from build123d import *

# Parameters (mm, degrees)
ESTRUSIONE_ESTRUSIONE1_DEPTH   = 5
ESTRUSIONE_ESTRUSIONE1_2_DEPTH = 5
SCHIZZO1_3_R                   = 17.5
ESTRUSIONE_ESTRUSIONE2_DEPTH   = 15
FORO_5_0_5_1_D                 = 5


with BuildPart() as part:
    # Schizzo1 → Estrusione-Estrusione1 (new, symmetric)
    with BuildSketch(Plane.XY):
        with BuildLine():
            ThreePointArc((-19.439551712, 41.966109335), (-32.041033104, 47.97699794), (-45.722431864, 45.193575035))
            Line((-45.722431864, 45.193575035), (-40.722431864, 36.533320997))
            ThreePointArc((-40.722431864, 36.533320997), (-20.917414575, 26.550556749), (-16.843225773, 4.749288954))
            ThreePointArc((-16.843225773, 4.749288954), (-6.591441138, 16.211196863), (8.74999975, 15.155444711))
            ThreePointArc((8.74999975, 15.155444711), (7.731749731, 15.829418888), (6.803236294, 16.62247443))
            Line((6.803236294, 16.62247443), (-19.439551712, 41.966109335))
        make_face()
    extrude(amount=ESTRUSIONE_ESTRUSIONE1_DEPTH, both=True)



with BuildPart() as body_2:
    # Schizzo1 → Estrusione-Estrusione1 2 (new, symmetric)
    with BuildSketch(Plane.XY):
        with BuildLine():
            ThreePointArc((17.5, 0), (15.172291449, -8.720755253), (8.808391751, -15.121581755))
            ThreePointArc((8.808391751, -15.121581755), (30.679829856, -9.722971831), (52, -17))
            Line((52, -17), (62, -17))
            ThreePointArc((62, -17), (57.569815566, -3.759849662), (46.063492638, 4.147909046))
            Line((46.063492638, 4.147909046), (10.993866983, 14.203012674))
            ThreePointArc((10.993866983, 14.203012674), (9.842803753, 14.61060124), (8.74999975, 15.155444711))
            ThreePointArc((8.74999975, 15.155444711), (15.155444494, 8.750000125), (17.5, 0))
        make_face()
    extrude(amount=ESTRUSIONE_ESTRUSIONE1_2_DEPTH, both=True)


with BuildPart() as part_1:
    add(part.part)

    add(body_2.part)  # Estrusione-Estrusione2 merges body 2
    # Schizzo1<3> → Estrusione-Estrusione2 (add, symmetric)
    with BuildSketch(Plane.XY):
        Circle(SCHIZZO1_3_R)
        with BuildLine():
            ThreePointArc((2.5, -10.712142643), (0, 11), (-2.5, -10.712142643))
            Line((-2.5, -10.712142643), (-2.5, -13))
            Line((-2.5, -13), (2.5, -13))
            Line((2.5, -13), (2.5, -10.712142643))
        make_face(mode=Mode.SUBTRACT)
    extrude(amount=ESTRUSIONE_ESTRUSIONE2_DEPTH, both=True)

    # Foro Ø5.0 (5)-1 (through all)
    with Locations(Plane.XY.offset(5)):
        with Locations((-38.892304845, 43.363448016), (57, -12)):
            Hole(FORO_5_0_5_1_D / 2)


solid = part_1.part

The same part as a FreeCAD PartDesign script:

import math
import FreeCAD as App
import Part
import Sketcher

V = App.Vector
Q = App.Units.Quantity

doc = App.newDocument("Part")
params = doc.addObject("Spreadsheet::Sheet", "Params")
for row, (alias, value) in enumerate([
    ("sketch1_radius", "22 mm"),
    ("sketch1_radius2", "25 mm"),
    ("sketch1_radius3", "10 mm"),
    ("sketch1_radius4", "17.5 mm"),
    ("sketch1_length", "10 mm"),
    ("pad1_length", "10 mm"),
    ("sketch2_radius", "40 mm"),
    ("sketch2_radius2", "22 mm"),
    ("sketch2_radius3", "10 mm"),
    ("sketch2_radius4", "17.5 mm"),
    ("sketch2_width", "10 mm"),
    ("pad2_length", "10 mm"),
    ("sketch3_diameter", "35 mm"),
    ("sketch3_radius", "11 mm"),
    ("sketch3_width", "5 mm"),
    ("pad3_length", "30 mm"),
    ("sketch4_diameter", "5 mm"),
    ("hole_diameter", "5 mm"),
], start=1):
    params.set(f"A{row}", alias)
    params.set(f"B{row}", "=" + value)
    params.setAlias(f"B{row}", alias)

body = doc.addObject("PartDesign::Body", "Body")

# Sketch on XY plane
sketch1 = body.newObject("Sketcher::SketchObject", "Sketch")
sketch1.AttachmentSupport = (doc.getObject("XY_Plane"), [""])
sketch1.MapMode = "FlatFace"
sketch1.addGeometry([
    Part.ArcOfCircle(Part.Circle(V(-34.7, 26.1, 0), V(0, 0, 1), 22), math.radians(46), math.radians(120)),  # 0
    Part.LineSegment(V(-45.7, 45.2, 0), V(-40.7, 36.5, 0)),  # 1
    Part.ArcOfCircle(Part.Circle(V(-40.9, 11.5, 0), V(0, 0, 1), 25), math.radians(-16), math.radians(90)),  # 2
    Part.ArcOfCircle(Part.Circle(V(0, 0, 0), V(0, 0, 1), 17.5), math.radians(60), math.radians(164)),  # 3
    Part.ArcOfCircle(Part.Circle(V(13.7, 23.8, 0), V(0, 0, 1), 10), math.radians(-134), math.radians(-120)),  # 4
    Part.LineSegment(V(6.8, 16.6, 0), V(-19.4, 42, 0)),  # 5
], False)
sketch1.addConstraint([
    Sketcher.Constraint("Coincident", 0, 2, 1, 1),
    Sketcher.Constraint("Coincident", 1, 2, 2, 2),
    Sketcher.Constraint("Tangent", 2, 1, 3, 2),
    Sketcher.Constraint("Tangent", 3, 1, 4, 2),
    Sketcher.Constraint("Tangent", 4, 1, 5, 1),
    Sketcher.Constraint("Tangent", 5, 2, 0, 1),
    Sketcher.Constraint("Coincident", 3, 3, -1, 1),
    Sketcher.Constraint("Radius", 0, Q("22 mm")),
    Sketcher.Constraint("Radius", 2, Q("25 mm")),
    Sketcher.Constraint("Radius", 4, Q("10 mm")),
    Sketcher.Constraint("Radius", 3, Q("17.5 mm")),
    Sketcher.Constraint("Angle", 1, Q("-60 deg")),
    Sketcher.Constraint("Distance", 1, Q("10 mm")),
    Sketcher.Constraint("DistanceX", 0, 2, 0, 3, Q("11 mm")),
    Sketcher.Constraint("DistanceX", 3, 1, 4, 3, Q("5 mm")),
    Sketcher.Constraint("DistanceY", 2, 1, 2, 3, Q("6.784699 mm")),
    Sketcher.Constraint("Distance", 5, Q("36.48265 mm")),
])
sketch1.setExpression("Constraints[7]", "Params.sketch1_radius")
sketch1.setExpression("Constraints[8]", "Params.sketch1_radius2")
sketch1.setExpression("Constraints[9]", "Params.sketch1_radius3")
sketch1.setExpression("Constraints[10]", "Params.sketch1_radius4")
sketch1.setExpression("Constraints[12]", "Params.sketch1_length")
pad1 = body.newObject("PartDesign::Pad", "Pad")
pad1.Profile = sketch1
pad1.setExpression("Length", "Params.pad1_length")
pad1.Midplane = True
body2 = doc.addObject("PartDesign::Body", "Body001")

# Sketch on XY plane
sketch2 = body2.newObject("Sketcher::SketchObject", "Sketch001")
sketch2.AttachmentSupport = (doc.getObject("XY_Plane001"), [""])
sketch2.MapMode = "FlatFace"
sketch2.addGeometry([
    Part.ArcOfCircle(Part.Circle(V(0, 0, 0), V(0, 0, 1), 17.5), math.radians(-60), math.radians(0)),  # 0
    Part.ArcOfCircle(Part.Circle(V(28.9, -49.7, 0), V(0, 0, 1), 40), math.radians(55), math.radians(120)),  # 1
    Part.LineSegment(V(52, -17, 0), V(62, -17, 0)),  # 2
    Part.ArcOfCircle(Part.Circle(V(40, -17, 0), V(0, 0, 1), 22), math.radians(0), math.radians(74)),  # 3
    Part.LineSegment(V(46.1, 4.1, 0), V(11, 14.2, 0)),  # 4
    Part.ArcOfCircle(Part.Circle(V(13.8, 23.8, 0), V(0, 0, 1), 10), math.radians(-120), math.radians(-106)),  # 5
    Part.ArcOfCircle(Part.Circle(V(0, 0, 0), V(0, 0, 1), 17.5), math.radians(0), math.radians(60)),  # 6
], False)
sketch2.addConstraint([
    Sketcher.Constraint("Tangent", 0, 1, 1, 2),
    Sketcher.Constraint("Coincident", 1, 1, 2, 1),
    Sketcher.Constraint("Coincident", 2, 2, 3, 1),
    Sketcher.Constraint("Tangent", 3, 2, 4, 1),
    Sketcher.Constraint("Tangent", 4, 2, 5, 2),
    Sketcher.Constraint("Tangent", 5, 1, 6, 2),
    Sketcher.Constraint("Tangent", 6, 1, 0, 2),
    Sketcher.Constraint("Horizontal", 2),
    Sketcher.Constraint("Coincident", 0, 3, -1, 1),
    Sketcher.Constraint("Equal", 0, 6),
    Sketcher.Constraint("PointOnObject", 6, 1, -1),
    Sketcher.Constraint("Horizontal", 3, 3, 1, 1),
    Sketcher.Constraint("Radius", 1, Q("40 mm")),
    Sketcher.Constraint("Radius", 3, Q("22 mm")),
    Sketcher.Constraint("Radius", 5, Q("10 mm")),
    Sketcher.Constraint("Radius", 0, Q("17.5 mm")),
    Sketcher.Constraint("DistanceX", 2, 1, 2, 2, Q("10 mm")),
    Sketcher.Constraint("DistanceX", -1, 1, 3, 3, Q("40 mm")),
    Sketcher.Constraint("DistanceY", 3, 3, -1, 1, Q("17 mm")),
    Sketcher.Constraint("DistanceX", 5, 1, 5, 3, Q("5 mm")),
])
sketch2.setExpression("Constraints[12]", "Params.sketch2_radius")
sketch2.setExpression("Constraints[13]", "Params.sketch2_radius2")
sketch2.setExpression("Constraints[14]", "Params.sketch2_radius3")
sketch2.setExpression("Constraints[15]", "Params.sketch2_radius4")
sketch2.setExpression("Constraints[16]", "Params.sketch2_width")
pad2 = body2.newObject("PartDesign::Pad", "Pad001")
pad2.Profile = sketch2
pad2.setExpression("Length", "Params.pad2_length")
pad2.Midplane = True
body.AllowCompound = True
doc.recompute()

boolean = body.newObject("PartDesign::Boolean", "Boolean")
boolean.Type = "Fuse"
boolean.addObjects([body2])

# Sketch on XY plane
sketch3 = body.newObject("Sketcher::SketchObject", "Sketch002")
sketch3.AttachmentSupport = (doc.getObject("XY_Plane"), [""])
sketch3.MapMode = "FlatFace"
sketch3.addGeometry([
    Part.Circle(V(0, 0, 0), V(0, 0, 1), 17.5),  # 0
    Part.ArcOfCircle(Part.Circle(V(0, 0, 0), V(0, 0, 1), 11), math.radians(-77), math.radians(257)),  # 1
    Part.LineSegment(V(2.5, -10.7, 0), V(2.5, -13, 0)),  # 2
    Part.LineSegment(V(2.5, -13, 0), V(-2.5, -13, 0)),  # 3
    Part.LineSegment(V(-2.5, -13, 0), V(-2.5, -10.7, 0)),  # 4
], False)
sketch3.addConstraint([
    Sketcher.Constraint("Coincident", 1, 1, 2, 1),
    Sketcher.Constraint("Coincident", 2, 2, 3, 1),
    Sketcher.Constraint("Coincident", 3, 2, 4, 1),
    Sketcher.Constraint("Coincident", 4, 2, 1, 2),
    Sketcher.Constraint("Vertical", 2),
    Sketcher.Constraint("Horizontal", 3),
    Sketcher.Constraint("Vertical", 4),
    Sketcher.Constraint("Coincident", 0, 3, -1, 1),
    Sketcher.Constraint("Coincident", 1, 3, -1, 1),
    Sketcher.Constraint("Horizontal", 1, 1, 4, 2),
    Sketcher.Constraint("Diameter", 0, Q("35 mm")),
    Sketcher.Constraint("Radius", 1, Q("11 mm")),
    Sketcher.Constraint("DistanceX", 3, 2, 3, 1, Q("5 mm")),
    Sketcher.Constraint("DistanceY", 2, 2, -1, 1, Q("13 mm")),
])
sketch3.setExpression("Constraints[10]", "Params.sketch3_diameter")
sketch3.setExpression("Constraints[11]", "Params.sketch3_radius")
sketch3.setExpression("Constraints[12]", "Params.sketch3_width")
pad3 = body.newObject("PartDesign::Pad", "Pad002")
pad3.Profile = sketch3
pad3.setExpression("Length", "Params.pad3_length")
pad3.Midplane = True

# Sketch on XY plane
sketch4 = body.newObject("Sketcher::SketchObject", "Sketch003")
sketch4.AttachmentSupport = (doc.getObject("XY_Plane"), [""])
sketch4.MapMode = "FlatFace"
sketch4.AttachmentOffset = App.Placement(V(0, 0, 5), App.Rotation())
sketch4.addGeometry([
    Part.Circle(V(-38.9, 43.4, 0), V(0, 0, 1), 2.5),
    Part.Circle(V(57, -12, 0), V(0, 0, 1), 2.5),
], False)
sketch4.addConstraint([
    Sketcher.Constraint("Equal", 0, 1),
    Sketcher.Constraint("Diameter", 0, Q("5 mm")),
    Sketcher.Constraint("DistanceX", -1, 1, 1, 3, Q("57 mm")),
    Sketcher.Constraint("DistanceY", 1, 3, -1, 1, Q("12 mm")),
    Sketcher.Constraint("DistanceY", -1, 1, 0, 3, Q("43.363448 mm")),
    Sketcher.Constraint("DistanceX", 0, 3, -1, 1, Q("38.892305 mm")),
])
sketch4.setExpression("Constraints[1]", "Params.sketch4_diameter")
doc.recompute()
hole = body.newObject("PartDesign::Hole", "Hole")
hole.Profile = sketch4
hole.ThreadType = "None"
hole.setExpression("Diameter", "Params.hole_diameter")
hole.DepthType = "ThroughAll"

doc.recompute()
